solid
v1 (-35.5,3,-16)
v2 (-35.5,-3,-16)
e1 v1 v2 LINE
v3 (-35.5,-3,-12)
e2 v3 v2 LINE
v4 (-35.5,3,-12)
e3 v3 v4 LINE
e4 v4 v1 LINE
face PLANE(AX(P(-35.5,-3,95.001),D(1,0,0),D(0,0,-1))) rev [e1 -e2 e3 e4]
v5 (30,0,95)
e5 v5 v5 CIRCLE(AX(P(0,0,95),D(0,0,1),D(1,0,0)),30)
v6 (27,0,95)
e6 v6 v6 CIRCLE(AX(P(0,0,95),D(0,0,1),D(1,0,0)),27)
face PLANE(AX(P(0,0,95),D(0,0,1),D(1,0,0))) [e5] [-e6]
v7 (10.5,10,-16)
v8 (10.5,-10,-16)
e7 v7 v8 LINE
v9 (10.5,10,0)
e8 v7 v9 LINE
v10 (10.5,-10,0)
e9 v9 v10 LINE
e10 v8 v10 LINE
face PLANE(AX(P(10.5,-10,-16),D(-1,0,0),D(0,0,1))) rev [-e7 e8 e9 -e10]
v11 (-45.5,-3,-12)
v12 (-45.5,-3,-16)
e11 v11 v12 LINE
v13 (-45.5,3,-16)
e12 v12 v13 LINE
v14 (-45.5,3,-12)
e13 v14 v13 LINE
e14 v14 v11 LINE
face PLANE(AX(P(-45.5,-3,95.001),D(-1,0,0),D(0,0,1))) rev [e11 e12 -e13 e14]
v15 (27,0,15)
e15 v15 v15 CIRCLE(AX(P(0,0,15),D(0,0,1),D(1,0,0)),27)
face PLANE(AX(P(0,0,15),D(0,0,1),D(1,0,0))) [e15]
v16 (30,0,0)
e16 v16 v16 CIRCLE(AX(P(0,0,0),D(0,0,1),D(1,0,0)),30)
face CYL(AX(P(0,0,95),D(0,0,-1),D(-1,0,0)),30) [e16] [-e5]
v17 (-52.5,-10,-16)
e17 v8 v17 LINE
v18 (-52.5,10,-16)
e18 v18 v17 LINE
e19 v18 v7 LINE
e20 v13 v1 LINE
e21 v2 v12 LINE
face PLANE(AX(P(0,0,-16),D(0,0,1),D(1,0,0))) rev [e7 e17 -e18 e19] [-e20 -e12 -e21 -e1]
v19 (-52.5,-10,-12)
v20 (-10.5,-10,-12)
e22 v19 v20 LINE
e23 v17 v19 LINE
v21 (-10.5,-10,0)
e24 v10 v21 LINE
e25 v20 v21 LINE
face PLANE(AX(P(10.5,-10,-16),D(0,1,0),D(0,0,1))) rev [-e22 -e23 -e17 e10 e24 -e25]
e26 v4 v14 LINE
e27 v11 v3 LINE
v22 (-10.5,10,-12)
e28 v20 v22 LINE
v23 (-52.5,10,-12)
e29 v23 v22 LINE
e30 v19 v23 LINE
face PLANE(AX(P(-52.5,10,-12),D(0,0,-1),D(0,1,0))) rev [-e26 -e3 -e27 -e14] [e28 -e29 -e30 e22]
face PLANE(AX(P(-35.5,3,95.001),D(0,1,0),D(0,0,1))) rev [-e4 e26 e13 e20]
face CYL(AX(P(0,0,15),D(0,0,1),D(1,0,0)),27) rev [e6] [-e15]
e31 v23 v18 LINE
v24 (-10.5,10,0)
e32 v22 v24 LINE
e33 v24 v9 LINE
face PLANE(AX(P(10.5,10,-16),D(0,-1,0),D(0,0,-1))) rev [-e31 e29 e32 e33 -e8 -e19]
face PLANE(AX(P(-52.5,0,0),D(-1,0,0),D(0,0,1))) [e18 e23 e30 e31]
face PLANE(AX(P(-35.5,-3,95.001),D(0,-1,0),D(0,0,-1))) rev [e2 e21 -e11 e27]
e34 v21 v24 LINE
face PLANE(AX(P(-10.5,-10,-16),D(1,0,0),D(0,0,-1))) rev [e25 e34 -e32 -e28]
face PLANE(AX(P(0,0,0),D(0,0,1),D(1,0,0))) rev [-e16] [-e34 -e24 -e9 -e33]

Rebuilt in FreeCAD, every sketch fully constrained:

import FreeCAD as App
import Part
import Sketcher


def add_polygon(sketch, points):
    """Adds a closed chain of lines whose ends are joined by coincident constraints."""
    first, n = sketch.GeometryCount, len(points)
    for a, b in zip(points, points[1:] + points[:1]):
        sketch.addGeometry(Part.LineSegment(App.Vector(*a, 0), App.Vector(*b, 0)), False)
    for i in range(n):
        sketch.addConstraint(Sketcher.Constraint("Coincident", first + i, 2, first + (i + 1) % n, 1))

doc = App.newDocument("Part")
body = doc.addObject("PartDesign::Body", "Body")

# Sketch on XY plane
sketch1 = body.newObject("Sketcher::SketchObject", "Sketch")
sketch1.AttachmentSupport = (doc.getObject("XY_Plane"), [""])
sketch1.MapMode = "FlatFace"
sketch1.addGeometry(Part.Circle(App.Vector(0, 0, 0), App.Vector(0, 0, 1), 30), False)
sketch1.addConstraint([
    Sketcher.Constraint("Coincident", 0, 3, -1, 1),
    Sketcher.Constraint("Diameter", 0, 60.0),
])
pad1 = body.newObject("PartDesign::Pad", "Pad")
pad1.Profile = sketch1
pad1.Length = 95

# Sketch on XY plane
sketch2 = body.newObject("Sketcher::SketchObject", "Sketch001")
sketch2.AttachmentSupport = (doc.getObject("XY_Plane"), [""])
sketch2.MapMode = "FlatFace"
sketch2.AttachmentOffset = App.Placement(App.Vector(0, 0, 95), App.Rotation())
sketch2.addGeometry(Part.Circle(App.Vector(0, 0, 0), App.Vector(0, 0, 1), 27), False)
sketch2.addConstraint([
    Sketcher.Constraint("Coincident", 0, 3, -1, 1),
    Sketcher.Constraint("Diameter", 0, 54.0),
])
pocket1 = body.newObject("PartDesign::Pocket", "Pocket")
pocket1.Profile = sketch2
pocket1.Length = 80

# Sketch on XY plane
sketch3 = body.newObject("Sketcher::SketchObject", "Sketch002")
sketch3.AttachmentSupport = (doc.getObject("XY_Plane"), [""])
sketch3.MapMode = "FlatFace"
add_polygon(sketch3, [(10, 10), (10, -10), (-10, -10), (-10, 10)])  # lines 0-3
sketch3.addConstraint([
    Sketcher.Constraint("Vertical", 0),
    Sketcher.Constraint("Horizontal", 1),
    Sketcher.Constraint("Vertical", 2),
    Sketcher.Constraint("Horizontal", 3),
    Sketcher.Constraint("Symmetric", 0, 2, 2, 2, -1, 1),
    Sketcher.Constraint("DistanceX", 1, 2, 1, 1, 21.0),
    Sketcher.Constraint("DistanceY", 0, 2, 0, 1, 20.0),
])
pad2 = body.newObject("PartDesign::Pad", "Pad001")
pad2.Profile = sketch3
pad2.Length = 16
pad2.Reversed = True

# Sketch on YZ plane
sketch4 = body.newObject("Sketcher::SketchObject", "Sketch003")
sketch4.AttachmentSupport = (doc.getObject("YZ_Plane"), [""])
sketch4.MapMode = "FlatFace"
sketch4.AttachmentOffset = App.Placement(App.Vector(0, 0, -10.5), App.Rotation())
add_polygon(sketch4, [(10, -16), (-10, -16), (-10, -12), (10, -12)])  # lines 0-3
sketch4.addConstraint([
    Sketcher.Constraint("Horizontal", 0),
    Sketcher.Constraint("Vertical", 1),
    Sketcher.Constraint("Horizontal", 2),
    Sketcher.Constraint("Vertical", 3),
    Sketcher.Constraint("DistanceX", 0, 2, 0, 1, 20.0),
    Sketcher.Constraint("DistanceY", 1, 1, 1, 2, 4.0),
    Sketcher.Constraint("DistanceX", 0, 2, -1, 1, 10.0),
    Sketcher.Constraint("DistanceY", 0, 2, -1, 1, 16.0),
])
pad3 = body.newObject("PartDesign::Pad", "Pad002")
pad3.Profile = sketch4
pad3.Length = 42
pad3.Reversed = True

# Sketch on XY plane
sketch5 = body.newObject("Sketcher::SketchObject", "Sketch004")
sketch5.AttachmentSupport = (doc.getObject("XY_Plane"), [""])
sketch5.MapMode = "FlatFace"
sketch5.AttachmentOffset = App.Placement(App.Vector(0, 0, -16), App.Rotation())
add_polygon(sketch5, [(-36, 3), (-36, -3), (-46, -3), (-46, 3)])  # lines 0-3
sketch5.addConstraint([
    Sketcher.Constraint("Vertical", 0),
    Sketcher.Constraint("Horizontal", 1),
    Sketcher.Constraint("Vertical", 2),
    Sketcher.Constraint("Horizontal", 3),
    Sketcher.Constraint("DistanceX", 1, 2, 1, 1, 10.0),
    Sketcher.Constraint("DistanceY", 0, 2, 0, 1, 6.0),
    Sketcher.Constraint("DistanceY", 0, 2, -1, 1, 3.0),
    Sketcher.Constraint("DistanceX", 0, 2, -1, 1, 35.5),
])
pocket2 = body.newObject("PartDesign::Pocket", "Pocket001")
pocket2.Profile = sketch5
pocket2.Type = "UpToFirst"
pocket2.Reversed = True

doc.recompute()
